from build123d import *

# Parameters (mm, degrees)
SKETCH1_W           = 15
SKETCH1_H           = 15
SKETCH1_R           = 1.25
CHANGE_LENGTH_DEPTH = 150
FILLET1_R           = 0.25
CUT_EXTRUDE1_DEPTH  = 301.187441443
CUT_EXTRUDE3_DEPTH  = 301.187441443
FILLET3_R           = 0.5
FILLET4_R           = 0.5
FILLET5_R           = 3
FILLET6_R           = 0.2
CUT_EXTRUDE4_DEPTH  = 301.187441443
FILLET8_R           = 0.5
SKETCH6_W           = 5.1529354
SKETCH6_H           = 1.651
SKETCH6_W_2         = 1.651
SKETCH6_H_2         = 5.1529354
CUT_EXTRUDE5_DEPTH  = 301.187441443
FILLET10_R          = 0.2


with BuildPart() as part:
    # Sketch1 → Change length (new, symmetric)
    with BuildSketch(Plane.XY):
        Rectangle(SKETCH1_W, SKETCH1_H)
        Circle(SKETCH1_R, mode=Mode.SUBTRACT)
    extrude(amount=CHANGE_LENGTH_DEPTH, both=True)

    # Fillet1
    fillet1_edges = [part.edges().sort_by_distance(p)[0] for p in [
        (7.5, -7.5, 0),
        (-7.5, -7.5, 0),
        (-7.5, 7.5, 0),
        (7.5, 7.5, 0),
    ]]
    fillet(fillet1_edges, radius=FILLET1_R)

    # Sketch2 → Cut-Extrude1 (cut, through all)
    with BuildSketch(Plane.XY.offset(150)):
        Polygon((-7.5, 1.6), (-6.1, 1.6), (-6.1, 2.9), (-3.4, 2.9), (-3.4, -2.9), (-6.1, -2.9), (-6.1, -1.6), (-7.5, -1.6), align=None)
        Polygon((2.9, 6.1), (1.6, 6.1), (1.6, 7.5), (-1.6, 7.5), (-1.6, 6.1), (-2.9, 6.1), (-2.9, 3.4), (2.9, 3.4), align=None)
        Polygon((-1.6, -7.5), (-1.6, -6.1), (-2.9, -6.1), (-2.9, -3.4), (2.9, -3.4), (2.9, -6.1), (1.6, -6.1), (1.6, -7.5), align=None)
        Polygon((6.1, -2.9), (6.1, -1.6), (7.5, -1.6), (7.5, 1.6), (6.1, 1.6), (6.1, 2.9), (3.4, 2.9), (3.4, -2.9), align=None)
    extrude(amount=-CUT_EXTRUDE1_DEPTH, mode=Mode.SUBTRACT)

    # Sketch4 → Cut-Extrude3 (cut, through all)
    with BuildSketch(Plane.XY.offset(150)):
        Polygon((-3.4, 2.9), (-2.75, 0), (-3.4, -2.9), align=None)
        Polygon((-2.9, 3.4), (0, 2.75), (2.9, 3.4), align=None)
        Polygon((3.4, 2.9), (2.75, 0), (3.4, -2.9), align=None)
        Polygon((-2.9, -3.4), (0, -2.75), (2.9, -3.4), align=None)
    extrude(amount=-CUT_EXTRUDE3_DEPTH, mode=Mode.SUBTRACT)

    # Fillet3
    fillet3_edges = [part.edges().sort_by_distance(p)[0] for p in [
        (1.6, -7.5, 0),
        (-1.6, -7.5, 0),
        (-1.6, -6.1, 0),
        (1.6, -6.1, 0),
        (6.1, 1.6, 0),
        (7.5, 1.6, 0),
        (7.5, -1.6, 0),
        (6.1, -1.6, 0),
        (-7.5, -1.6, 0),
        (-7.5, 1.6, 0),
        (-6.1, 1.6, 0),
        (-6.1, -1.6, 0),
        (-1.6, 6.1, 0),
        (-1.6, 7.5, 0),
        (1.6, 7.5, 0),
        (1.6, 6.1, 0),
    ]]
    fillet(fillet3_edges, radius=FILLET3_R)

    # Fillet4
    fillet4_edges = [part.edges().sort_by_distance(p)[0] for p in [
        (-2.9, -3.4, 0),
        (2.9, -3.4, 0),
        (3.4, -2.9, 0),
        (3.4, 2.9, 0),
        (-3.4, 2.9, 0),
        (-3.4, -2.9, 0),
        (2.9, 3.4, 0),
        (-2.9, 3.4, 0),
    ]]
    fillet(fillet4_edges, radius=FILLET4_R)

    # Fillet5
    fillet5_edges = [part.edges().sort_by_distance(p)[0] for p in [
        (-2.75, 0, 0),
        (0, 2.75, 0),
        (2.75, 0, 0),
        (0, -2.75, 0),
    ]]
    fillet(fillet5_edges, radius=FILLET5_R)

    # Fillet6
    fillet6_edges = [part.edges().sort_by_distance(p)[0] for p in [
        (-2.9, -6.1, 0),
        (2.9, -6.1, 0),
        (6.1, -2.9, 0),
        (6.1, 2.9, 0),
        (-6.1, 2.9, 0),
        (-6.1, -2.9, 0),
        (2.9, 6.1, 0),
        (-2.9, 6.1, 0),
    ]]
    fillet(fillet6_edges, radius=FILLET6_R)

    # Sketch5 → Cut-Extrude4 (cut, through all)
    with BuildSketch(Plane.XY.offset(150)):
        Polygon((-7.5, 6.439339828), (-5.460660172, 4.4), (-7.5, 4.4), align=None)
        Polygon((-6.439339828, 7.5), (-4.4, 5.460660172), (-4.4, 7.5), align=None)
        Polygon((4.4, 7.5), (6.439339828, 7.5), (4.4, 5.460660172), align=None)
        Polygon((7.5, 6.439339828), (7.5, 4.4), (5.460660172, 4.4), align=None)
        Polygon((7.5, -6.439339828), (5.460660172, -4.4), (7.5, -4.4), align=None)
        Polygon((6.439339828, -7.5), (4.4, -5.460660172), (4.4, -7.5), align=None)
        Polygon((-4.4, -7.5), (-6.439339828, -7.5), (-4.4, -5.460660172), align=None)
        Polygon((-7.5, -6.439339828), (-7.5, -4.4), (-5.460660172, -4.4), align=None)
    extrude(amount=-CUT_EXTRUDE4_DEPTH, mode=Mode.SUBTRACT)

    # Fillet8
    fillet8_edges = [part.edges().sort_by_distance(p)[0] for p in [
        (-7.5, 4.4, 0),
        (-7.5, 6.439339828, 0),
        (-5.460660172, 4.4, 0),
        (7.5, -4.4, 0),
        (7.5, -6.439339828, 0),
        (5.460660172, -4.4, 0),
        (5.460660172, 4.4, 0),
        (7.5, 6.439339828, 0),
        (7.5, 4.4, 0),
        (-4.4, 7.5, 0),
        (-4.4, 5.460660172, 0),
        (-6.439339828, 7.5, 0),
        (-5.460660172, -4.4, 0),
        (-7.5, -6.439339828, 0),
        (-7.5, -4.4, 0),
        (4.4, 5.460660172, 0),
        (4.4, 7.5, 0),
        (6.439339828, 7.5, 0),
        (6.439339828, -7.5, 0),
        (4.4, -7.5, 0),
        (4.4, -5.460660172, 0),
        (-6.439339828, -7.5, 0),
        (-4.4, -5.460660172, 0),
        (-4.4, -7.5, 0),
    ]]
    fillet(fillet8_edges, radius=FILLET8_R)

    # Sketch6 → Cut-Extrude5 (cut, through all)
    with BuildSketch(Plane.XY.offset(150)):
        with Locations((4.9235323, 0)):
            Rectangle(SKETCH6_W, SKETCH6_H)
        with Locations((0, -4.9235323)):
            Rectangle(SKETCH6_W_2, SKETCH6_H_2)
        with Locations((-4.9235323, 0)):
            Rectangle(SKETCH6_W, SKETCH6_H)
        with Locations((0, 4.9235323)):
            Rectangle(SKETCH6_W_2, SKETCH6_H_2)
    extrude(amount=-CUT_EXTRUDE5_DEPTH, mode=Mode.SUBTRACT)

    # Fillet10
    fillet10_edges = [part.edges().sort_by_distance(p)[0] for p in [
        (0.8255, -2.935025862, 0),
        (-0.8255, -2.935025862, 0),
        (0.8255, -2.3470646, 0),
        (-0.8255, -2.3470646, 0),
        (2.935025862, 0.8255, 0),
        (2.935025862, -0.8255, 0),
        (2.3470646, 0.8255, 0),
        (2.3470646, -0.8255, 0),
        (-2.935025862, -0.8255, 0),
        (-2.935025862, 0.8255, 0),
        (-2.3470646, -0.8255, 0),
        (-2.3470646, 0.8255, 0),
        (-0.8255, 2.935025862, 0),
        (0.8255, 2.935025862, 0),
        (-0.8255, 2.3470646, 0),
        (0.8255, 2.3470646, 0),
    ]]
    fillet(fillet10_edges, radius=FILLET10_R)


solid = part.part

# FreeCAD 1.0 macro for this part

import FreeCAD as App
import Part
import Sketcher

V = App.Vector
Q = App.Units.Quantity


def edges_at(feature, points):
    """Names of the edges that pass closest to the given points."""
    edges = feature.Shape.Edges
    near = lambda p: min(range(len(edges)), key=lambda i: edges[i].distToShape(Part.Vertex(*p))[0])
    return sorted({f"Edge{near(p) + 1}" for p in points})


def add_polygon(sketch, points):
    """Adds a closed chain of lines whose ends are joined by coincident constraints."""
    first, n = sketch.GeometryCount, len(points)
    for a, b in zip(points, points[1:] + points[:1]):
        sketch.addGeometry(Part.LineSegment(App.Vector(*a, 0), App.Vector(*b, 0)), False)
    for i in range(n):
        sketch.addConstraint(Sketcher.Constraint("Coincident", first + i, 2, first + (i + 1) % n, 1))

doc = App.newDocument("Part")
params = doc.addObject("Spreadsheet::Sheet", "Params")
for row, (alias, value) in enumerate([
    ("sketch1_diameter", "2.5 mm"),
    ("sketch1_width", "15 mm"),
    ("pad1_length", "300 mm"),
    ("fillet_radius", "0.25 mm"),
    ("sketch2_width", "1.4 mm"),
    ("sketch2_width2", "2.7 mm"),
    ("sketch2_width3", "1.3 mm"),
    ("sketch2_width4", "3.2 mm"),
    ("sketch3_width", "5.8 mm"),
    ("fillet2_radius", "0.5 mm"),
    ("fillet3_radius", "0.5 mm"),
    ("fillet4_radius", "3 mm"),
    ("fillet5_radius", "0.2 mm"),
    ("fillet6_radius", "0.5 mm"),
    ("fillet7_radius", "0.2 mm"),
], start=1):
    params.set(f"A{row}", alias)
    params.set(f"B{row}", "=" + value)
    params.setAlias(f"B{row}", alias)

body = doc.addObject("PartDesign::Body", "Body")

sketch1 = body.newObject("Sketcher::SketchObject", "Sketch")
sketch1.AttachmentSupport = (doc.getObject("XY_Plane"), [""])
sketch1.MapMode = "FlatFace"
add_polygon(sketch1, [(-7.5, 7.5), (-7.5, -7.5), (7.5, -7.5), (7.5, 7.5)])
sketch1.addGeometry(Part.Circle(V(0, 0, 0), V(0, 0, 1), 1.2), False)
sketch1.addConstraint([
    Sketcher.Constraint("Vertical", 0),
    Sketcher.Constraint("Horizontal", 1),
    Sketcher.Constraint("Vertical", 2),
    Sketcher.Constraint("Horizontal", 3),
    Sketcher.Constraint("Coincident", 4, 3, -1, 1),
    Sketcher.Constraint("Symmetric", 0, 2, 2, 2, -1, 1),
    Sketcher.Constraint("Equal", 3, 0),
    Sketcher.Constraint("Diameter", 4, Q("2.5 mm")),
    Sketcher.Constraint("DistanceX", 1, 1, 1, 2, Q("15 mm")),
])
sketch1.setExpression("Constraints[11]", "Params.sketch1_diameter")
sketch1.setExpression("Constraints[12]", "Params.sketch1_width")
pad1 = body.newObject("PartDesign::Pad", "Pad")
pad1.Profile = sketch1
pad1.setExpression("Length", "Params.pad1_length")
pad1.Midplane = True
doc.recompute()

fillet = body.newObject("PartDesign::Fillet", "Fillet")
fillet.Base = (pad1, edges_at(pad1, [
    (7.5, -7.5, 0),
    (-7.5, -7.5, 0),
    (-7.5, 7.5, 0),
    (7.5, 7.5, 0),
]))
fillet.setExpression("Radius", "Params.fillet_radius")

sketch2 = body.newObject("Sketcher::SketchObject", "Sketch001")
sketch2.AttachmentSupport = (doc.getObject("XY_Plane"), [""])
sketch2.MapMode = "FlatFace"
sketch2.AttachmentOffset = App.Placement(V(0, 0, 150), App.Rotation())
add_polygon(sketch2, [(-6.1, 1.6), (-7.5, 1.6), (-7.5, -1.6), (-6.1, -1.6), (-6.1, -2.9), (-3.4, -2.9), (-3.4, 2.9), (-6.1, 2.9)])
add_polygon(sketch2, [(2.9, 6.1), (1.6, 6.1), (1.6, 7.5), (-1.6, 7.5), (-1.6, 6.1), (-2.9, 6.1), (-2.9, 3.4), (2.9, 3.4)])
add_polygon(sketch2, [(-1.6, -6.1), (-1.6, -7.5), (1.6, -7.5), (1.6, -6.1), (2.9, -6.1), (2.9, -3.4), (-2.9, -3.4), (-2.9, -6.1)])
add_polygon(sketch2, [(6.1, -2.9), (6.1, -1.6), (7.5, -1.6), (7.5, 1.6), (6.1, 1.6), (6.1, 2.9), (3.4, 2.9), (3.4, -2.9)])
sketch2.addConstraint([
    Sketcher.Constraint("Horizontal", 0),
    Sketcher.Constraint("Vertical", 1),
    Sketcher.Constraint("Horizontal", 2),
    Sketcher.Constraint("Vertical", 3),
    Sketcher.Constraint("Horizontal", 4),
    Sketcher.Constraint("Vertical", 5),
    Sketcher.Constraint("Horizontal", 6),
    Sketcher.Constraint("Vertical", 7),
    Sketcher.Constraint("Horizontal", 8),
    Sketcher.Constraint("Vertical", 9),
    Sketcher.Constraint("Horizontal", 10),
    Sketcher.Constraint("Vertical", 11),
    Sketcher.Constraint("Horizontal", 12),
    Sketcher.Constraint("Vertical", 13),
    Sketcher.Constraint("Horizontal", 14),
    Sketcher.Constraint("Vertical", 15),
    Sketcher.Constraint("Vertical", 16),
    Sketcher.Constraint("Horizontal", 17),
    Sketcher.Constraint("Vertical", 18),
    Sketcher.Constraint("Horizontal", 19),
    Sketcher.Constraint("Vertical", 20),
    Sketcher.Constraint("Horizontal", 21),
    Sketcher.Constraint("Vertical", 22),
    Sketcher.Constraint("Horizontal", 23),
    Sketcher.Constraint("Vertical", 24),
    Sketcher.Constraint("Horizontal", 25),
    Sketcher.Constraint("Vertical", 26),
    Sketcher.Constraint("Horizontal", 27),
    Sketcher.Constraint("Vertical", 28),
    Sketcher.Constraint("Horizontal", 29),
    Sketcher.Constraint("Vertical", 30),
    Sketcher.Constraint("Horizontal", 31),
    Sketcher.Constraint("Symmetric", 9, 2, 16, 2, -1, 1),
    Sketcher.Constraint("Symmetric", 11, 2, 18, 2, -1, 1),
    Sketcher.Constraint("Symmetric", 13, 2, 20, 2, -1, 1),
    Sketcher.Constraint("Symmetric", 15, 2, 22, 2, -1, 1),
    Sketcher.Constraint("Symmetric", 7, 2, 24, 2, -1, 1),
    Sketcher.Constraint("Symmetric", 1, 2, 26, 2, -1, 1),
    Sketcher.Constraint("Symmetric", 3, 2, 28, 2, -1, 1),
    Sketcher.Constraint("Symmetric", 5, 2, 30, 2, -1, 1),
    Sketcher.Constraint("Symmetric", 8, 2, 11, 2, -2),
    Sketcher.Constraint("Symmetric", 2, 2, 24, 2, -2),
    Sketcher.Constraint("Horizontal", 6, 2, 28, 2),
    Sketcher.Constraint("Vertical", 15, 2, 19, 2),
    Sketcher.Constraint("Equal", 17, 1),
    Sketcher.Constraint("Equal", 23, 3),
    Sketcher.Constraint("Equal", 27, 9),
    Sketcher.Constraint("Equal", 31, 13),
    Sketcher.Constraint("DistanceX", 0, 2, 0, 1, Q("1.4 mm")),
    Sketcher.Constraint("DistanceX", 4, 1, 4, 2, Q("2.7 mm")),
    Sketcher.Constraint("DistanceX", 8, 2, 8, 1, Q("1.3 mm")),
    Sketcher.Constraint("DistanceX", 10, 2, 10, 1, Q("3.2 mm")),
    Sketcher.Constraint("DistanceX", 5, 2, 8, 2, Q("5 mm")),
    Sketcher.Constraint("DistanceY", 4, 2, 8, 2, Q("9 mm")),
])
sketch2.setExpression("Constraints[80]", "Params.sketch2_width")
sketch2.setExpression("Constraints[81]", "Params.sketch2_width2")
sketch2.setExpression("Constraints[82]", "Params.sketch2_width3")
sketch2.setExpression("Constraints[83]", "Params.sketch2_width4")
pocket1 = body.newObject("PartDesign::Pocket", "Pocket")
pocket1.Profile = sketch2
pocket1.Type = "ThroughAll"

sketch3 = body.newObject("Sketcher::SketchObject", "Sketch002")
sketch3.AttachmentSupport = (doc.getObject("XY_Plane"), [""])
sketch3.MapMode = "FlatFace"
sketch3.AttachmentOffset = App.Placement(V(0, 0, 150), App.Rotation())
add_polygon(sketch3, [(-2.8, 0), (-3.4, 2.9), (-3.4, -2.9)])
add_polygon(sketch3, [(-2.9, 3.4), (0, 2.8), (2.9, 3.4)])
add_polygon(sketch3, [(3.4, 2.9), (2.8, 0), (3.4, -2.9)])
add_polygon(sketch3, [(0, -2.8), (-2.9, -3.4), (2.9, -3.4)])
sketch3.addConstraint([
    Sketcher.Constraint("Vertical", 1),
    Sketcher.Constraint("Horizontal", 5),
    Sketcher.Constraint("Vertical", 8),
    Sketcher.Constraint("Horizontal", 10),
    Sketcher.Constraint("Symmetric", 2, 2, 6, 2, -1, 1),
    Sketcher.Constraint("Symmetric", 0, 2, 7, 2, -1, 1),
    Sketcher.Constraint("Symmetric", 4, 2, 9, 2, -1, 1),
    Sketcher.Constraint("Symmetric", 3, 2, 11, 2, -1, 1),
    Sketcher.Constraint("PointOnObject", 2, 2, -1),
    Sketcher.Constraint("PointOnObject", 3, 2, -2),
    Sketcher.Constraint("Perpendicular", 2, 3),
    Sketcher.Constraint("Perpendicular", 0, 4),
    Sketcher.Constraint("Perpendicular", 3, 6),
    Sketcher.Constraint("Perpendicular", 6, 11),
    Sketcher.Constraint("Horizontal", 1, 2, 7, 2),
    Sketcher.Constraint("Equal", 10, 1),
    Sketcher.Constraint("DistanceX", 5, 2, 5, 1, Q("5.8 mm")),
    Sketcher.Constraint("DistanceX", 0, 2, -1, 1, Q("3.4 mm")),
    Sketcher.Constraint("DistanceY", -1, 1, 4, 2, Q("3.4 mm")),
    Sketcher.Constraint("DistanceX", 2, 2, 6, 2, Q("5.5 mm")),
])
sketch3.setExpression("Constraints[28]", "Params.sketch3_width")
pocket2 = body.newObject("PartDesign::Pocket", "Pocket001")
pocket2.Profile = sketch3
pocket2.Type = "ThroughAll"
doc.recompute()

fillet2 = body.newObject("PartDesign::Fillet", "Fillet001")
fillet2.Base = (pocket2, edges_at(pocket2, [
    (1.6, -7.5, 0),
    (-1.6, -7.5, 0),
    (-1.6, -6.1, 0),
    (1.6, -6.1, 0),
    (6.1, 1.6, 0),
    (7.5, 1.6, 0),
    (7.5, -1.6, 0),
    (6.1, -1.6, 0),
    (-7.5, -1.6, 0),
    (-7.5, 1.6, 0),
    (-6.1, 1.6, 0),
    (-6.1, -1.6, 0),
    (-1.6, 6.1, 0),
    (-1.6, 7.5, 0),
    (1.6, 7.5, 0),
    (1.6, 6.1, 0),
]))
fillet2.setExpression("Radius", "Params.fillet2_radius")
doc.recompute()

fillet3 = body.newObject("PartDesign::Fillet", "Fillet002")
fillet3.Base = (fillet2, edges_at(fillet2, [
    (-2.9, -3.4, 0),
    (2.9, -3.4, 0),
    (3.4, -2.9, 0),
    (3.4, 2.9, 0),
    (-3.4, 2.9, 0),
    (-3.4, -2.9, 0),
    (2.9, 3.4, 0),
    (-2.9, 3.4, 0),
]))
fillet3.setExpression("Radius", "Params.fillet3_radius")
doc.recompute()

fillet4 = body.newObject("PartDesign::Fillet", "Fillet003")
fillet4.Base = (fillet3, edges_at(fillet3, [
    (-2.75, 0, 0),
    (0, 2.75, 0),
    (2.75, 0, 0),
    (0, -2.75, 0),
]))
fillet4.setExpression("Radius", "Params.fillet4_radius")
doc.recompute()

fillet5 = body.newObject("PartDesign::Fillet", "Fillet004")
fillet5.Base = (fillet4, edges_at(fillet4, [
    (-2.9, -6.1, 0),
    (2.9, -6.1, 0),
    (6.1, -2.9, 0),
    (6.1, 2.9, 0),
    (-6.1, 2.9, 0),
    (-6.1, -2.9, 0),
    (2.9, 6.1, 0),
    (-2.9, 6.1, 0),
]))
fillet5.setExpression("Radius", "Params.fillet5_radius")

sketch4 = body.newObject("Sketcher::SketchObject", "Sketch003")
sketch4.AttachmentSupport = (doc.getObject("XY_Plane"), [""])
sketch4.MapMode = "FlatFace"
sketch4.AttachmentOffset = App.Placement(V(0, 0, 150), App.Rotation())
add_polygon(sketch4, [(-5.5, 4.4), (-7.5, 6.4), (-7.5, 4.4)])
add_polygon(sketch4, [(-6.4, 7.5), (-4.4, 5.5), (-4.4, 7.5)])
add_polygon(sketch4, [(6.4, 7.5), (4.4, 7.5), (4.4, 5.5)])
add_polygon(sketch4, [(7.5, 4.4), (7.5, 6.4), (5.5, 4.4)])
add_polygon(sketch4, [(5.5, -4.4), (7.5, -6.4), (7.5, -4.4)])
add_polygon(sketch4, [(6.4, -7.5), (4.4, -5.5), (4.4, -7.5)])
add_polygon(sketch4, [(-6.4, -7.5), (-4.4, -7.5), (-4.4, -5.5)])
add_polygon(sketch4, [(-7.5, -4.4), (-7.5, -6.4), (-5.5, -4.4)])
sketch4.addConstraint([
    Sketcher.Constraint("Vertical", 1),
    Sketcher.Constraint("Horizontal", 2),
    Sketcher.Constraint("Vertical", 4),
    Sketcher.Constraint("Horizontal", 5),
    Sketcher.Constraint("Horizontal", 6),
    Sketcher.Constraint("Vertical", 7),
    Sketcher.Constraint("Vertical", 9),
    Sketcher.Constraint("Horizontal", 11),
    Sketcher.Constraint("Vertical", 13),
    Sketcher.Constraint("Horizontal", 14),
    Sketcher.Constraint("Vertical", 16),
    Sketcher.Constraint("Horizontal", 17),
    Sketcher.Constraint("Horizontal", 18),
    Sketcher.Constraint("Vertical", 19),
    Sketcher.Constraint("Vertical", 21),
    Sketcher.Constraint("Horizontal", 23),
    Sketcher.Constraint("Symmetric", 0, 2, 12, 2, -1, 1),
    Sketcher.Constraint("Symmetric", 2, 2, 14, 2, -1, 1),
    Sketcher.Constraint("Symmetric", 3, 2, 15, 2, -1, 1),
    Sketcher.Constraint("Symmetric", 5, 2, 17, 2, -1, 1),
    Sketcher.Constraint("Symmetric", 6, 2, 18, 2, -1, 1),
    Sketcher.Constraint("Symmetric", 9, 2, 21, 2, -1, 1),
    Sketcher.Constraint("Symmetric", 10, 2, 22, 2, -1, 1),
    Sketcher.Constraint("Symmetric", 4, 2, 6, 2, -2),
    Sketcher.Constraint("Symmetric", 0, 2, 9, 2, -2),
    Sketcher.Constraint("Symmetric", 2, 2, 10, 2, -2),
    Sketcher.Constraint("Parallel", 0, 3),
    Sketcher.Constraint("Perpendicular", 3, 8),
    Sketcher.Constraint("Parallel", 8, 10),
    Sketcher.Constraint("Perpendicular", 15, 20),
    Sketcher.Constraint("Horizontal", 3, 2, 7, 2),
    Sketcher.Constraint("Horizontal", 15, 2, 19, 2),
    Sketcher.Constraint("Equal", 2, 5),
    Sketcher.Constraint("DistanceX", 0, 2, -1, 1, Q("7.5 mm")),
    Sketcher.Constraint("DistanceY", -1, 1, 1, 2, Q("4.4 mm")),
    Sketcher.Constraint("DistanceX", 3, 2, -1, 1, Q("4.4 mm")),
    Sketcher.Constraint("DistanceY", -1, 1, 4, 2, Q("7.5 mm")),
    Sketcher.Constraint("DistanceX", 2, 1, 2, 2, Q("2.03934 mm")),
])
pocket3 = body.newObject("PartDesign::Pocket", "Pocket002")
pocket3.Profile = sketch4
pocket3.Type = "ThroughAll"
doc.recompute()

fillet6 = body.newObject("PartDesign::Fillet", "Fillet005")
fillet6.Base = (pocket3, edges_at(pocket3, [
    (-7.5, 4.4, 0),
    (-7.5, 6.439, 0),
    (-5.461, 4.4, 0),
    (7.5, -4.4, 0),
    (7.5, -6.439, 0),
    (5.461, -4.4, 0),
    (5.461, 4.4, 0),
    (7.5, 6.439, 0),
    (7.5, 4.4, 0),
    (-4.4, 7.5, 0),
    (-4.4, 5.461, 0),
    (-6.439, 7.5, 0),
    (-5.461, -4.4, 0),
    (-7.5, -6.439, 0),
    (-7.5, -4.4, 0),
    (4.4, 5.461, 0),
    (4.4, 7.5, 0),
    (6.439, 7.5, 0),
    (6.439, -7.5, 0),
    (4.4, -7.5, 0),
    (4.4, -5.461, 0),
    (-6.439, -7.5, 0),
    (-4.4, -5.461, 0),
    (-4.4, -7.5, 0),
]))
fillet6.setExpression("Radius", "Params.fillet6_radius")

sketch5 = body.newObject("Sketcher::SketchObject", "Sketch004")
sketch5.AttachmentSupport = (doc.getObject("XY_Plane"), [""])
sketch5.MapMode = "FlatFace"
sketch5.AttachmentOffset = App.Placement(V(0, 0, 150), App.Rotation())
add_polygon(sketch5, [(2.3, 0.8), (2.3, -0.8), (7.5, -0.8), (7.5, 0.8)])
add_polygon(sketch5, [(-0.8, -2.3), (-0.8, -7.5), (0.8, -7.5), (0.8, -2.3)])
add_polygon(sketch5, [(-7.5, 0.8), (-7.5, -0.8), (-2.3, -0.8), (-2.3, 0.8)])
add_polygon(sketch5, [(-0.8, 7.5), (-0.8, 2.3), (0.8, 2.3), (0.8, 7.5)])
sketch5.addConstraint([
    Sketcher.Constraint("Vertical", 0),
    Sketcher.Constraint("Horizontal", 1),
    Sketcher.Constraint("Vertical", 2),
    Sketcher.Constraint("Horizontal", 3),
    Sketcher.Constraint("Vertical", 4),
    Sketcher.Constraint("Horizontal", 5),
    Sketcher.Constraint("Vertical", 6),
    Sketcher.Constraint("Horizontal", 7),
    Sketcher.Constraint("Vertical", 8),
    Sketcher.Constraint("Horizontal", 9),
    Sketcher.Constraint("Vertical", 10),
    Sketcher.Constraint("Horizontal", 11),
    Sketcher.Constraint("Vertical", 12),
    Sketcher.Constraint("Horizontal", 13),
    Sketcher.Constraint("Vertical", 14),
    Sketcher.Constraint("Horizontal", 15),
    Sketcher.Constraint("Symmetric", 2, 2, 8, 2, -1, 1),
    Sketcher.Constraint("Symmetric", 0, 2, 10, 2, -1, 1),
    Sketcher.Constraint("Symmetric", 6, 2, 12, 2, -1, 1),
    Sketcher.Constraint("Symmetric", 4, 2, 14, 2, -1, 1),
    Sketcher.Constraint("Horizontal", 1, 2, 8, 2),
    Sketcher.Constraint("Vertical", 7, 2, 12, 2),
    Sketcher.Constraint("Equal", 15, 0),
    Sketcher.Constraint("Equal", 11, 4),
    Sketcher.Constraint("DistanceX", -1, 1, 1, 2, Q("7.5 mm")),
    Sketcher.Constraint("DistanceY", 4, 2, -1, 1, Q("7.5 mm")),
    Sketcher.Constraint("DistanceX", 5, 1, 5, 2, Q("1.651 mm")),
    Sketcher.Constraint("DistanceX", 1, 1, 1, 2, Q("5.152935 mm")),
])
pocket4 = body.newObject("PartDesign::Pocket", "Pocket003")
pocket4.Profile = sketch5
pocket4.Type = "ThroughAll"
doc.recompute()

fillet7 = body.newObject("PartDesign::Fillet", "Fillet006")
fillet7.Base = (pocket4, edges_at(pocket4, [
    (0.826, -2.935, 0),
    (-0.826, -2.935, 0),
    (0.826, -2.347, 0),
    (-0.826, -2.347, 0),
    (2.935, 0.826, 0),
    (2.935, -0.826, 0),
    (2.347, 0.826, 0),
    (2.347, -0.826, 0),
    (-2.935, -0.826, 0),
    (-2.935, 0.826, 0),
    (-2.347, -0.826, 0),
    (-2.347, 0.826, 0),
    (-0.826, 2.935, 0),
    (0.826, 2.935, 0),
    (-0.826, 2.347, 0),
    (0.826, 2.347, 0),
]))
fillet7.setExpression("Radius", "Params.fillet7_radius")

doc.recompute()
